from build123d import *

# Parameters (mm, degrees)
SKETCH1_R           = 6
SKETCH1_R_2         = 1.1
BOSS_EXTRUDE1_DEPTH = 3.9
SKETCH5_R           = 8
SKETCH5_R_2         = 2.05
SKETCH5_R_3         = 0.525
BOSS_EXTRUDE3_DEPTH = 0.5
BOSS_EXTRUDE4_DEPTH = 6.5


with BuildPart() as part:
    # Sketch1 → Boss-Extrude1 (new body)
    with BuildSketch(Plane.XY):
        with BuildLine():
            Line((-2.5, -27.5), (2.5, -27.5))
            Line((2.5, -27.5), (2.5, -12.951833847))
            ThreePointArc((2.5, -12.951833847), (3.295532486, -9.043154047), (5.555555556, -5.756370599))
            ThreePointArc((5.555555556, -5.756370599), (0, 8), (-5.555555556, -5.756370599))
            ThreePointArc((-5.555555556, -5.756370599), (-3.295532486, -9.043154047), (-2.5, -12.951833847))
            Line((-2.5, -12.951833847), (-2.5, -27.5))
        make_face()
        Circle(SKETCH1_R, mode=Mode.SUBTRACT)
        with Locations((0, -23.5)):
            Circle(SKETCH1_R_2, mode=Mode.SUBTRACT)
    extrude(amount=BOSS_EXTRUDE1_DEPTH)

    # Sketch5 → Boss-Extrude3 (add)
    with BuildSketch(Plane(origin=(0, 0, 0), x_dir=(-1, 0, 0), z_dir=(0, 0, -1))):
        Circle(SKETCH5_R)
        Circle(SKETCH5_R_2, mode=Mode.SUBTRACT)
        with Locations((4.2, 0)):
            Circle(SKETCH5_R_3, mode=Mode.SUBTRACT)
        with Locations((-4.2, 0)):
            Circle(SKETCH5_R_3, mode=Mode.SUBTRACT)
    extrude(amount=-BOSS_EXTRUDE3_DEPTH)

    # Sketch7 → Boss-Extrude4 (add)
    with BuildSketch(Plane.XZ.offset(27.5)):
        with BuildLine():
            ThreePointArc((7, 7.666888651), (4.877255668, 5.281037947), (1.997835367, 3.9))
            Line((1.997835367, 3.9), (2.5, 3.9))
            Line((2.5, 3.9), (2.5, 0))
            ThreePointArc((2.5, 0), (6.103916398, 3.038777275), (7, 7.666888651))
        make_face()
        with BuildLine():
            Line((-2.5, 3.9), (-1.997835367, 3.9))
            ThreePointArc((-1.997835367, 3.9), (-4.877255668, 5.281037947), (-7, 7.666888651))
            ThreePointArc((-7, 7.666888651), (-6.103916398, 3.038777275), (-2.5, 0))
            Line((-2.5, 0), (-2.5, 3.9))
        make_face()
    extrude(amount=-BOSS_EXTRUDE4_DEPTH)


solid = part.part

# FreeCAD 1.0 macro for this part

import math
import FreeCAD as App
import Part
import Sketcher

doc = App.newDocument("Part")
body = doc.addObject("PartDesign::Body", "Body")

# Sketch on XY plane
sketch1 = body.newObject("Sketcher::SketchObject", "Sketch")
sketch1.AttachmentSupport = (doc.getObject("XY_Plane"), [""])
sketch1.MapMode = "FlatFace"
sketch1.addGeometry([
    Part.LineSegment(App.Vector(-2.5, -27.5, 0), App.Vector(2.5, -27.5, 0)),  # 0
    Part.LineSegment(App.Vector(2.5, -27.5, 0), App.Vector(2.5, -13, 0)),  # 1
    Part.ArcOfCircle(Part.Circle(App.Vector(12.5, -13, 0), App.Vector(0, 0, 1), 10), math.radians(134), math.radians(180)),  # 2
    Part.ArcOfCircle(Part.Circle(App.Vector(0, 0, 0), App.Vector(0, 0, 1), 8), math.radians(-46), math.radians(226)),  # 3
    Part.ArcOfCircle(Part.Circle(App.Vector(-12.5, -13, 0), App.Vector(0, 0, 1), 10), math.radians(0), math.radians(46)),  # 4
    Part.LineSegment(App.Vector(-2.5, -13, 0), App.Vector(-2.5, -27.5, 0)),  # 5
    Part.Circle(App.Vector(0, -23.5, 0), App.Vector(0, 0, 1), 1.1),  # 6
    Part.Circle(App.Vector(0, 0, 0), App.Vector(0, 0, 1), 6),  # 7
], False)
sketch1.addConstraint([
    Sketcher.Constraint("Coincident", 0, 2, 1, 1),
    Sketcher.Constraint("Tangent", 1, 2, 2, 2),
    Sketcher.Constraint("Tangent", 2, 1, 3, 1),
    Sketcher.Constraint("Tangent", 3, 2, 4, 2),
    Sketcher.Constraint("Tangent", 4, 1, 5, 1),
    Sketcher.Constraint("Coincident", 5, 2, 0, 1),
    Sketcher.Constraint("Horizontal", 0),
    Sketcher.Constraint("Vertical", 1),
    Sketcher.Constraint("Vertical", 5),
    Sketcher.Constraint("Coincident", 3, 3, -1, 1),
    Sketcher.Constraint("Coincident", 7, 3, -1, 1),
    Sketcher.Constraint("Equal", 2, 4),
    Sketcher.Constraint("PointOnObject", 6, 3, -2),
    Sketcher.Constraint("Horizontal", 2, 3, 4, 3),
    Sketcher.Constraint("Diameter", 7, 12.0),
    Sketcher.Constraint("Radius", 2, 10.0),
    Sketcher.Constraint("Radius", 3, 8.0),
    Sketcher.Constraint("Diameter", 6, 2.2),
    Sketcher.Constraint("DistanceX", 0, 1, 0, 2, 5.0),
    Sketcher.Constraint("DistanceY", 0, 2, 6, 3, 4.0),
    Sketcher.Constraint("DistanceY", 6, 3, -1, 1, 23.5),
])
pad1 = body.newObject("PartDesign::Pad", "Pad")
pad1.Profile = sketch1
pad1.Length = 3.9

# Sketch on XY plane
sketch2 = body.newObject("Sketcher::SketchObject", "Sketch001")
sketch2.AttachmentSupport = (doc.getObject("XY_Plane"), [""])
sketch2.MapMode = "FlatFace"
sketch2.addGeometry([
    Part.Circle(App.Vector(0, 0, 0), App.Vector(0, 0, 1), 8),
    Part.Circle(App.Vector(4.2, 0, 0), App.Vector(0, 0, 1), 0.5),
    Part.Circle(App.Vector(0, 0, 0), App.Vector(0, 0, 1), 2),
    Part.Circle(App.Vector(-4.2, 0, 0), App.Vector(0, 0, 1), 0.5),
], False)
sketch2.addConstraint([
    Sketcher.Constraint("Coincident", 0, 3, -1, 1),
    Sketcher.Constraint("Coincident", 2, 3, -1, 1),
    Sketcher.Constraint("Equal", 1, 3),
    Sketcher.Constraint("Symmetric", 1, 3, 3, 3, -1, 1),
    Sketcher.Constraint("PointOnObject", 1, 3, -1),
    Sketcher.Constraint("Diameter", 0, 16.0),
    Sketcher.Constraint("Diameter", 2, 4.1),
    Sketcher.Constraint("Diameter", 1, 1.05),
    Sketcher.Constraint("DistanceX", -1, 1, 1, 3, 4.2),
])
pad2 = body.newObject("PartDesign::Pad", "Pad001")
pad2.Profile = sketch2
pad2.Length = 0.5

# Sketch on XZ plane
sketch3 = body.newObject("Sketcher::SketchObject", "Sketch002")
sketch3.AttachmentSupport = (doc.getObject("XZ_Plane"), [""])
sketch3.MapMode = "FlatFace"
sketch3.AttachmentOffset = App.Placement(App.Vector(0, 0, 27.5), App.Rotation())
sketch3.addGeometry([
    Part.ArcOfCircle(Part.Circle(App.Vector(0, 11.8, 0), App.Vector(0, 0, 1), 8.1), math.radians(-76), math.radians(-30)),  # 0
    Part.LineSegment(App.Vector(2, 3.9, 0), App.Vector(2.5, 3.9, 0)),  # 1
    Part.LineSegment(App.Vector(2.5, 3.9, 0), App.Vector(2.5, 0, 0)),  # 2
    Part.ArcOfCircle(Part.Circle(App.Vector(0, 6.6, 0), App.Vector(0, 0, 1), 7.1), math.radians(-69), math.radians(8)),  # 3
    Part.LineSegment(App.Vector(-2.5, 3.9, 0), App.Vector(-2, 3.9, 0)),  # 4
    Part.ArcOfCircle(Part.Circle(App.Vector(0, 11.8, 0), App.Vector(0, 0, 1), 8.1), math.radians(-150), math.radians(-104)),  # 5
    Part.ArcOfCircle(Part.Circle(App.Vector(0, 6.6, 0), App.Vector(0, 0, 1), 7.1), math.radians(172), math.radians(249)),  # 6
    Part.LineSegment(App.Vector(-2.5, 0, 0), App.Vector(-2.5, 3.9, 0)),  # 7
], False)
sketch3.addConstraint([
    Sketcher.Constraint("Coincident", 0, 1, 1, 1),
    Sketcher.Constraint("Coincident", 1, 2, 2, 1),
    Sketcher.Constraint("Coincident", 2, 2, 3, 1),
    Sketcher.Constraint("Coincident", 3, 2, 0, 2),
    Sketcher.Constraint("Coincident", 4, 2, 5, 2),
    Sketcher.Constraint("Coincident", 5, 1, 6, 1),
    Sketcher.Constraint("Coincident", 6, 2, 7, 1),
    Sketcher.Constraint("Coincident", 7, 2, 4, 1),
    Sketcher.Constraint("Horizontal", 1),
    Sketcher.Constraint("Vertical", 2),
    Sketcher.Constraint("Horizontal", 4),
    Sketcher.Constraint("Vertical", 7),
    Sketcher.Constraint("Coincident", 5, 3, 0, 3),
    Sketcher.Constraint("Coincident", 6, 3, 3, 3),
    Sketcher.Constraint("Equal", 0, 5),
    Sketcher.Constraint("Equal", 3, 6),
    Sketcher.Constraint("Symmetric", 2, 2, 6, 2, -1, 1),
    Sketcher.Constraint("Symmetric", 0, 1, 4, 2, -2),
    Sketcher.Constraint("PointOnObject", 3, 3, -2),
    Sketcher.Constraint("DistanceY", 2, 2, 2, 1, 3.9),
    Sketcher.Constraint("DistanceX", -1, 1, 3, 2, 7.0),
    Sketcher.Constraint("DistanceX", 6, 2, 2, 2, 5.0),
    Sketcher.Constraint("Radius", 0, 8.107692),
    Sketcher.Constraint("Radius", 3, 7.077643),
])
pad3 = body.newObject("PartDesign::Pad", "Pad002")
pad3.Profile = sketch3
pad3.Length = 6.5
pad3.Reversed = True

doc.recompute()
